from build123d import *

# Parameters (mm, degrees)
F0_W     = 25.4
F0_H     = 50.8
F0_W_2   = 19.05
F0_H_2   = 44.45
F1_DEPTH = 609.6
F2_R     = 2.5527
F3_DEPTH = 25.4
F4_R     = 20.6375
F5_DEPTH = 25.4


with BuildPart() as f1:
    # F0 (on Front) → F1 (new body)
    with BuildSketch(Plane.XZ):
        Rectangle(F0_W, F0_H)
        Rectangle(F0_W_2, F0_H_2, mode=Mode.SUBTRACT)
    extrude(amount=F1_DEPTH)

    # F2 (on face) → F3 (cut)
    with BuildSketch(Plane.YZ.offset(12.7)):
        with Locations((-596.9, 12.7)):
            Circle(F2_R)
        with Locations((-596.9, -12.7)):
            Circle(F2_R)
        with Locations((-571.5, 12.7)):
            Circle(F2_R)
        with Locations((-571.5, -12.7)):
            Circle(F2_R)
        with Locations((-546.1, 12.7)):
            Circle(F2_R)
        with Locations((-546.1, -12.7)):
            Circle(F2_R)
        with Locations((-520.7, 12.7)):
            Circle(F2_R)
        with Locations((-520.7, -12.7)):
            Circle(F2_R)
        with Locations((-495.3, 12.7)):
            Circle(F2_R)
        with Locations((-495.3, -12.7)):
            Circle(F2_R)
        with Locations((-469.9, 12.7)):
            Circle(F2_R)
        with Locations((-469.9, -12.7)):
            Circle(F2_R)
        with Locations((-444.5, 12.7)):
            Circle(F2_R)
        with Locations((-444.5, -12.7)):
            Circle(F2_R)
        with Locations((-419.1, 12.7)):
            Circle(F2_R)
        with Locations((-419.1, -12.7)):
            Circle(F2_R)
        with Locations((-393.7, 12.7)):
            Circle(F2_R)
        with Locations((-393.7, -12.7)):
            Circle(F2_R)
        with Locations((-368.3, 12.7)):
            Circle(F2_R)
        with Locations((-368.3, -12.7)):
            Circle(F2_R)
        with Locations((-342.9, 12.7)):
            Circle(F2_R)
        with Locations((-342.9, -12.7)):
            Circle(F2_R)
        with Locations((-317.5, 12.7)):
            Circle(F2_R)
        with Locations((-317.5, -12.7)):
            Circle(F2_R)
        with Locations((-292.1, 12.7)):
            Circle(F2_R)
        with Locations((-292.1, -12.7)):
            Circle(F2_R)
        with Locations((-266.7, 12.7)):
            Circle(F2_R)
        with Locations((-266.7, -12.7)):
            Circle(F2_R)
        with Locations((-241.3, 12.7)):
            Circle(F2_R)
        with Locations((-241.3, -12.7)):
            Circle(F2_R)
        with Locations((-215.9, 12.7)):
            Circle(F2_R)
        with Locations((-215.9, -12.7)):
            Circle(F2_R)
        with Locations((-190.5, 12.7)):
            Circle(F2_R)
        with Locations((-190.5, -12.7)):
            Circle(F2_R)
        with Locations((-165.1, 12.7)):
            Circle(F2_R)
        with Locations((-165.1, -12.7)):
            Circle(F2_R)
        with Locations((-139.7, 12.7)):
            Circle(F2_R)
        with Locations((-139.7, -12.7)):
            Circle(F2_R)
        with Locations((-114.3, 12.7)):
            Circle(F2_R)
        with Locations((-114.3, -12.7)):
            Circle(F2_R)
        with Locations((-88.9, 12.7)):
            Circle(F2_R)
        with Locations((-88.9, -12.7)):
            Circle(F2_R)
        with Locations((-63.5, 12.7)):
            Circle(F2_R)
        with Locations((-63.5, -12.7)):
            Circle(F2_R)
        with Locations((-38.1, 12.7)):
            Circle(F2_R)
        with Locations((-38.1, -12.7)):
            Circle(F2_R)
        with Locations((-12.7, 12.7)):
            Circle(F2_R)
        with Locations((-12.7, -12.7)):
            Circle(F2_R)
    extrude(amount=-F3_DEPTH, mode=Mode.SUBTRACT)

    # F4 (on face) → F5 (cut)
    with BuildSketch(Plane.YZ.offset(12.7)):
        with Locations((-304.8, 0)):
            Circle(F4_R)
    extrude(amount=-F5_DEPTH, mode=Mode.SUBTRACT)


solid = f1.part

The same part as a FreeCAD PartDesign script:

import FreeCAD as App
import Part
import Sketcher
Q = App.Units.Quantity

doc = App.newDocument("Part")
body = doc.addObject("PartDesign::Body", "Body")

sketch1 = doc.addObject("Sketcher::SketchObject", "Sketch")
body.addObject(sketch1)
sketch1.AttachmentSupport = (doc.XZ_Plane, [""])
sketch1.MapMode = "FlatFace"
sketch1.addGeometry([
    Part.LineSegment(App.Vector(-13, 25, 0), App.Vector(-13, -25, 0)),
    Part.LineSegment(App.Vector(-13, -25, 0), App.Vector(13, -25, 0)),
    Part.LineSegment(App.Vector(13, -25, 0), App.Vector(13, 25, 0)),
    Part.LineSegment(App.Vector(13, 25, 0), App.Vector(-13, 25, 0)),
    Part.LineSegment(App.Vector(10, -22, 0), App.Vector(-10, -22, 0)),
    Part.LineSegment(App.Vector(-10, -22, 0), App.Vector(-10, 22, 0)),
    Part.LineSegment(App.Vector(-10, 22, 0), App.Vector(10, 22, 0)),
    Part.LineSegment(App.Vector(10, 22, 0), App.Vector(10, -22, 0)),
], False)
sketch1.addConstraint([
    Sketcher.Constraint("Coincident", 0, 2, 1, 1),
    Sketcher.Constraint("Coincident", 1, 2, 2, 1),
    Sketcher.Constraint("Coincident", 2, 2, 3, 1),
    Sketcher.Constraint("Coincident", 3, 2, 0, 1),
    Sketcher.Constraint("Coincident", 4, 2, 5, 1),
    Sketcher.Constraint("Coincident", 5, 2, 6, 1),
    Sketcher.Constraint("Coincident", 6, 2, 7, 1),
    Sketcher.Constraint("Coincident", 7, 2, 4, 1),
    Sketcher.Constraint("Vertical", 0),
    Sketcher.Constraint("Horizontal", 1),
    Sketcher.Constraint("Vertical", 2),
    Sketcher.Constraint("Horizontal", 3),
    Sketcher.Constraint("Horizontal", 4),
    Sketcher.Constraint("Vertical", 5),
    Sketcher.Constraint("Horizontal", 6),
    Sketcher.Constraint("Vertical", 7),
    Sketcher.Constraint("Symmetric", 0, 2, 2, 2, -1, 1),
    Sketcher.Constraint("Symmetric", 4, 2, 6, 2, -1, 1),
    Sketcher.Constraint("DistanceX", 1, 1, 1, 2, Q("1 in")),
    Sketcher.Constraint("DistanceY", 0, 2, 0, 1, Q("2 in")),
    Sketcher.Constraint("DistanceX", 4, 2, 4, 1, Q("0.75 in")),
    Sketcher.Constraint("DistanceY", 5, 1, 5, 2, Q("1.75 in")),
])
pad1 = doc.addObject("PartDesign::Pad", "Pad")
body.addObject(pad1)
pad1.Profile = sketch1
pad1.Length = Q("24 in")

sketch2 = doc.addObject("Sketcher::SketchObject", "Sketch001")
body.addObject(sketch2)
sketch2.AttachmentSupport = (doc.YZ_Plane, [""])
sketch2.MapMode = "FlatFace"
sketch2.AttachmentOffset = App.Placement(App.Vector(0, 0, 0.5 * 25.4), App.Rotation())
sketch2.addGeometry([
    Part.Circle(App.Vector(-596.9, 12.7, 0), App.Vector(0, 0, 1), 2.6),
    Part.Circle(App.Vector(-596.9, -12.7, 0), App.Vector(0, 0, 1), 2.6),
    Part.Circle(App.Vector(-571.5, 12.7, 0), App.Vector(0, 0, 1), 2.6),
    Part.Circle(App.Vector(-571.5, -12.7, 0), App.Vector(0, 0, 1), 2.6),
    Part.Circle(App.Vector(-546.1, 12.7, 0), App.Vector(0, 0, 1), 2.6),
    Part.Circle(App.Vector(-546.1, -12.7, 0), App.Vector(0, 0, 1), 2.6),
    Part.Circle(App.Vector(-520.7, 12.7, 0), App.Vector(0, 0, 1), 2.6),
    Part.Circle(App.Vector(-520.7, -12.7, 0), App.Vector(0, 0, 1), 2.6),
    Part.Circle(App.Vector(-495.3, 12.7, 0), App.Vector(0, 0, 1), 2.6),
    Part.Circle(App.Vector(-495.3, -12.7, 0), App.Vector(0, 0, 1), 2.6),
    Part.Circle(App.Vector(-469.9, 12.7, 0), App.Vector(0, 0, 1), 2.6),
    Part.Circle(App.Vector(-469.9, -12.7, 0), App.Vector(0, 0, 1), 2.6),
    Part.Circle(App.Vector(-444.5, 12.7, 0), App.Vector(0, 0, 1), 2.6),
    Part.Circle(App.Vector(-444.5, -12.7, 0), App.Vector(0, 0, 1), 2.6),
    Part.Circle(App.Vector(-419.1, 12.7, 0), App.Vector(0, 0, 1), 2.6),
    Part.Circle(App.Vector(-419.1, -12.7, 0), App.Vector(0, 0, 1), 2.6),
    Part.Circle(App.Vector(-393.7, 12.7, 0), App.Vector(0, 0, 1), 2.6),
    Part.Circle(App.Vector(-393.7, -12.7, 0), App.Vector(0, 0, 1), 2.6),
    Part.Circle(App.Vector(-368.3, 12.7, 0), App.Vector(0, 0, 1), 2.6),
    Part.Circle(App.Vector(-368.3, -12.7, 0), App.Vector(0, 0, 1), 2.6),
    Part.Circle(App.Vector(-342.9, 12.7, 0), App.Vector(0, 0, 1), 2.6),
    Part.Circle(App.Vector(-342.9, -12.7, 0), App.Vector(0, 0, 1), 2.6),
    Part.Circle(App.Vector(-317.5, 12.7, 0), App.Vector(0, 0, 1), 2.6),
    Part.Circle(App.Vector(-317.5, -12.7, 0), App.Vector(0, 0, 1), 2.6),
    Part.Circle(App.Vector(-292.1, 12.7, 0), App.Vector(0, 0, 1), 2.6),
    Part.Circle(App.Vector(-292.1, -12.7, 0), App.Vector(0, 0, 1), 2.6),
    Part.Circle(App.Vector(-266.7, 12.7, 0), App.Vector(0, 0, 1), 2.6),
    Part.Circle(App.Vector(-266.7, -12.7, 0), App.Vector(0, 0, 1), 2.6),
    Part.Circle(App.Vector(-241.3, 12.7, 0), App.Vector(0, 0, 1), 2.6),
    Part.Circle(App.Vector(-241.3, -12.7, 0), App.Vector(0, 0, 1), 2.6),
    Part.Circle(App.Vector(-215.9, 12.7, 0), App.Vector(0, 0, 1), 2.6),
    Part.Circle(App.Vector(-215.9, -12.7, 0), App.Vector(0, 0, 1), 2.6),
    Part.Circle(App.Vector(-190.5, 12.7, 0), App.Vector(0, 0, 1), 2.6),
    Part.Circle(App.Vector(-190.5, -12.7, 0), App.Vector(0, 0, 1), 2.6),
    Part.Circle(App.Vector(-165.1, 12.7, 0), App.Vector(0, 0, 1), 2.6),
    Part.Circle(App.Vector(-165.1, -12.7, 0), App.Vector(0, 0, 1), 2.6),
    Part.Circle(App.Vector(-139.7, 12.7, 0), App.Vector(0, 0, 1), 2.6),
    Part.Circle(App.Vector(-139.7, -12.7, 0), App.Vector(0, 0, 1), 2.6),
    Part.Circle(App.Vector(-114.3, 12.7, 0), App.Vector(0, 0, 1), 2.6),
    Part.Circle(App.Vector(-114.3, -12.7, 0), App.Vector(0, 0, 1), 2.6),
    Part.Circle(App.Vector(-88.9, 12.7, 0), App.Vector(0, 0, 1), 2.6),
    Part.Circle(App.Vector(-88.9, -12.7, 0), App.Vector(0, 0, 1), 2.6),
    Part.Circle(App.Vector(-63.5, 12.7, 0), App.Vector(0, 0, 1), 2.6),
    Part.Circle(App.Vector(-63.5, -12.7, 0), App.Vector(0, 0, 1), 2.6),
    Part.Circle(App.Vector(-38.1, 12.7, 0), App.Vector(0, 0, 1), 2.6),
    Part.Circle(App.Vector(-38.1, -12.7, 0), App.Vector(0, 0, 1), 2.6),
    Part.Circle(App.Vector(-12.7, 12.7, 0), App.Vector(0, 0, 1), 2.6),
    Part.Circle(App.Vector(-12.7, -12.7, 0), App.Vector(0, 0, 1), 2.6),
], False)
sketch2.addConstraint([
    Sketcher.Constraint("Equal", 0, 1),
    Sketcher.Constraint("Equal", 1, 2),
    Sketcher.Constraint("Equal", 2, 3),
    Sketcher.Constraint("Equal", 3, 4),
    Sketcher.Constraint("Equal", 4, 5),
    Sketcher.Constraint("Equal", 5, 6),
    Sketcher.Constraint("Equal", 6, 7),
    Sketcher.Constraint("Equal", 7, 8),
    Sketcher.Constraint("Equal", 8, 9),
    Sketcher.Constraint("Equal", 9, 10),
    Sketcher.Constraint("Equal", 10, 11),
    Sketcher.Constraint("Equal", 11, 12),
    Sketcher.Constraint("Equal", 12, 13),
    Sketcher.Constraint("Equal", 13, 14),
    Sketcher.Constraint("Equal", 14, 15),
    Sketcher.Constraint("Equal", 15, 16),
    Sketcher.Constraint("Equal", 16, 17),
    Sketcher.Constraint("Equal", 17, 18),
    Sketcher.Constraint("Equal", 18, 19),
    Sketcher.Constraint("Equal", 19, 20),
    Sketcher.Constraint("Equal", 20, 21),
    Sketcher.Constraint("Equal", 21, 22),
    Sketcher.Constraint("Equal", 22, 23),
    Sketcher.Constraint("Equal", 23, 24),
    Sketcher.Constraint("Equal", 24, 25),
    Sketcher.Constraint("Equal", 25, 26),
    Sketcher.Constraint("Equal", 26, 27),
    Sketcher.Constraint("Equal", 27, 28),
    Sketcher.Constraint("Equal", 28, 29),
    Sketcher.Constraint("Equal", 29, 30),
    Sketcher.Constraint("Equal", 30, 31),
    Sketcher.Constraint("Equal", 31, 32),
    Sketcher.Constraint("Equal", 32, 33),
    Sketcher.Constraint("Equal", 33, 34),
    Sketcher.Constraint("Equal", 34, 35),
    Sketcher.Constraint("Equal", 35, 36),
    Sketcher.Constraint("Equal", 36, 37),
    Sketcher.Constraint("Equal", 37, 38),
    Sketcher.Constraint("Equal", 38, 39),
    Sketcher.Constraint("Equal", 39, 40),
    Sketcher.Constraint("Equal", 40, 41),
    Sketcher.Constraint("Equal", 41, 42),
    Sketcher.Constraint("Equal", 42, 43),
    Sketcher.Constraint("Equal", 43, 44),
    Sketcher.Constraint("Equal", 44, 45),
    Sketcher.Constraint("Equal", 45, 46),
    Sketcher.Constraint("Equal", 46, 47),
    Sketcher.Constraint("Symmetric", 0, 3, 1, 3, -1),
    Sketcher.Constraint("Symmetric", 2, 3, 3, 3, -1),
    Sketcher.Constraint("Symmetric", 4, 3, 5, 3, -1),
    Sketcher.Constraint("Symmetric", 6, 3, 7, 3, -1),
    Sketcher.Constraint("Symmetric", 8, 3, 9, 3, -1),
    Sketcher.Constraint("Symmetric", 10, 3, 11, 3, -1),
    Sketcher.Constraint("Symmetric", 12, 3, 13, 3, -1),
    Sketcher.Constraint("Symmetric", 14, 3, 15, 3, -1),
    Sketcher.Constraint("Symmetric", 16, 3, 17, 3, -1),
    Sketcher.Constraint("Symmetric", 18, 3, 19, 3, -1),
    Sketcher.Constraint("Symmetric", 20, 3, 21, 3, -1),
    Sketcher.Constraint("Symmetric", 22, 3, 23, 3, -1),
    Sketcher.Constraint("Symmetric", 24, 3, 25, 3, -1),
    Sketcher.Constraint("Symmetric", 26, 3, 27, 3, -1),
    Sketcher.Constraint("Symmetric", 28, 3, 29, 3, -1),
    Sketcher.Constraint("Symmetric", 30, 3, 31, 3, -1),
    Sketcher.Constraint("Symmetric", 32, 3, 33, 3, -1),
    Sketcher.Constraint("Symmetric", 34, 3, 35, 3, -1),
    Sketcher.Constraint("Symmetric", 36, 3, 37, 3, -1),
    Sketcher.Constraint("Symmetric", 38, 3, 39, 3, -1),
    Sketcher.Constraint("Symmetric", 40, 3, 41, 3, -1),
    Sketcher.Constraint("Symmetric", 42, 3, 43, 3, -1),
    Sketcher.Constraint("Symmetric", 44, 3, 45, 3, -1),
    Sketcher.Constraint("Symmetric", 46, 3, 47, 3, -1),
    Sketcher.Constraint("Horizontal", 0, 3, 2, 3),
    Sketcher.Constraint("Horizontal", 2, 3, 4, 3),
    Sketcher.Constraint("Horizontal", 4, 3, 6, 3),
    Sketcher.Constraint("Horizontal", 6, 3, 8, 3),
    Sketcher.Constraint("Horizontal", 8, 3, 10, 3),
    Sketcher.Constraint("Horizontal", 10, 3, 12, 3),
    Sketcher.Constraint("Horizontal", 12, 3, 14, 3),
    Sketcher.Constraint("Horizontal", 14, 3, 16, 3),
    Sketcher.Constraint("Horizontal", 16, 3, 18, 3),
    Sketcher.Constraint("Horizontal", 18, 3, 20, 3),
    Sketcher.Constraint("Horizontal", 20, 3, 22, 3),
    Sketcher.Constraint("Horizontal", 22, 3, 24, 3),
    Sketcher.Constraint("Horizontal", 24, 3, 26, 3),
    Sketcher.Constraint("Horizontal", 26, 3, 28, 3),
    Sketcher.Constraint("Horizontal", 28, 3, 30, 3),
    Sketcher.Constraint("Horizontal", 30, 3, 32, 3),
    Sketcher.Constraint("Horizontal", 32, 3, 34, 3),
    Sketcher.Constraint("Horizontal", 34, 3, 36, 3),
    Sketcher.Constraint("Horizontal", 36, 3, 38, 3),
    Sketcher.Constraint("Horizontal", 38, 3, 40, 3),
    Sketcher.Constraint("Horizontal", 40, 3, 42, 3),
    Sketcher.Constraint("Horizontal", 42, 3, 44, 3),
    Sketcher.Constraint("Horizontal", 44, 3, 46, 3),
    Sketcher.Constraint("Diameter", 0, Q("0.201 in")),
    Sketcher.Constraint("DistanceY", 1, 3, 0, 3, Q("1 in")),
    Sketcher.Constraint("DistanceX", 0, 3, 2, 3, Q("1 in")),
    Sketcher.Constraint("DistanceX", 2, 3, 4, 3, Q("1 in")),
    Sketcher.Constraint("DistanceX", 4, 3, 6, 3, Q("1 in")),
    Sketcher.Constraint("DistanceX", 6, 3, 8, 3, Q("1 in")),
    Sketcher.Constraint("DistanceX", 8, 3, 10, 3, Q("1 in")),
    Sketcher.Constraint("DistanceX", 10, 3, 12, 3, Q("1 in")),
    Sketcher.Constraint("DistanceX", 12, 3, 14, 3, Q("1 in")),
    Sketcher.Constraint("DistanceX", 14, 3, 16, 3, Q("1 in")),
    Sketcher.Constraint("DistanceX", 16, 3, 18, 3, Q("1 in")),
    Sketcher.Constraint("DistanceX", 18, 3, 20, 3, Q("1 in")),
    Sketcher.Constraint("DistanceX", 20, 3, 22, 3, Q("1 in")),
    Sketcher.Constraint("DistanceX", 22, 3, 24, 3, Q("1 in")),
    Sketcher.Constraint("DistanceX", 24, 3, 26, 3, Q("1 in")),
    Sketcher.Constraint("DistanceX", 26, 3, 28, 3, Q("1 in")),
    Sketcher.Constraint("DistanceX", 28, 3, 30, 3, Q("1 in")),
    Sketcher.Constraint("DistanceX", 30, 3, 32, 3, Q("1 in")),
    Sketcher.Constraint("DistanceX", 32, 3, 34, 3, Q("1 in")),
    Sketcher.Constraint("DistanceX", 34, 3, 36, 3, Q("1 in")),
    Sketcher.Constraint("DistanceX", 36, 3, 38, 3, Q("1 in")),
    Sketcher.Constraint("DistanceX", 38, 3, 40, 3, Q("1 in")),
    Sketcher.Constraint("DistanceX", 40, 3, 42, 3, Q("1 in")),
    Sketcher.Constraint("DistanceX", 42, 3, 44, 3, Q("1 in")),
    Sketcher.Constraint("DistanceX", 44, 3, 46, 3, Q("1 in")),
    Sketcher.Constraint("DistanceX", 0, 3, -1, 1, Q("23.5 in")),
])
pocket1 = doc.addObject("PartDesign::Pocket", "Pocket")
body.addObject(pocket1)
pocket1.Profile = sketch2
pocket1.Length = Q("1 in")

sketch3 = doc.addObject("Sketcher::SketchObject", "Sketch002")
body.addObject(sketch3)
sketch3.AttachmentSupport = (doc.YZ_Plane, [""])
sketch3.MapMode = "FlatFace"
sketch3.AttachmentOffset = App.Placement(App.Vector(0, 0, 0.5 * 25.4), App.Rotation())
sketch3.addGeometry(Part.Circle(App.Vector(-305, 0, 0), App.Vector(0, 0, 1), 21), False)
sketch3.addConstraint([
    Sketcher.Constraint("PointOnObject", 0, 3, -1),
    Sketcher.Constraint("Diameter", 0, Q("1.625 in")),
    Sketcher.Constraint("DistanceX", 0, 3, -1, 1, Q("12 in")),
])
pocket2 = doc.addObject("PartDesign::Pocket", "Pocket001")
body.addObject(pocket2)
pocket2.Profile = sketch3
pocket2.Length = Q("1 in")

doc.recompute()
